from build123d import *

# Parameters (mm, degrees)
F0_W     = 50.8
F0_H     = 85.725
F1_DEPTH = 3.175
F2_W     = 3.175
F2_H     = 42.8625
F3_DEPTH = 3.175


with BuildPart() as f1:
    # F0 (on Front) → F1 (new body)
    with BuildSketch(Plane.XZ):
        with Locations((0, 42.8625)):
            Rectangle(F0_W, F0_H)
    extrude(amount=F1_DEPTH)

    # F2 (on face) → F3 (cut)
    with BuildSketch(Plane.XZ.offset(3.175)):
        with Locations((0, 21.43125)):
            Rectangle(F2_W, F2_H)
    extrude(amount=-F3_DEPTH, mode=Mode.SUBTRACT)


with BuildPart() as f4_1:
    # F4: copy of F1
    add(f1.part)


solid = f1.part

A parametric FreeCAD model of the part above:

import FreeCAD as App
import Part
import Sketcher
from FreeCAD import Vector
Q = App.Units.Quantity


def add_polygon(sketch, points):
    """Adds a closed chain of lines whose ends are joined by coincident constraints."""
    first, n = sketch.GeometryCount, len(points)
    for a, b in zip(points, points[1:] + points[:1]):
        sketch.addGeometry(Part.LineSegment(App.Vector(*a, 0), App.Vector(*b, 0)), False)
    for i in range(n):
        sketch.addConstraint(Sketcher.Constraint("Coincident", first + i, 2, first + (i + 1) % n, 1))

doc = App.newDocument("Part")
body = doc.addObject("PartDesign::Body", "Body")

sketch1 = doc.addObject("Sketcher::SketchObject", "Sketch")
body.addObject(sketch1)
sketch1.AttachmentSupport = (doc.XZ_Plane, [""])
sketch1.MapMode = "FlatFace"
add_polygon(sketch1, [(-25, 86), (-25, 0), (25, 0), (25, 86)])
sketch1.addConstraint([
    Sketcher.Constraint("Vertical", 0),
    Sketcher.Constraint("Horizontal", 1),
    Sketcher.Constraint("Vertical", 2),
    Sketcher.Constraint("Horizontal", 3),
    Sketcher.Constraint("Symmetric", 0, 2, 1, 2, -1, 1),
    Sketcher.Constraint("DistanceX", 1, 1, 1, 2, Q("2 in")),
    Sketcher.Constraint("DistanceY", 0, 2, 0, 1, Q("3.375 in")),
])
pad1 = doc.addObject("PartDesign::Pad", "Pad")
body.addObject(pad1)
pad1.Profile = sketch1
pad1.Length = Q("0.125 in")

sketch2 = doc.addObject("Sketcher::SketchObject", "Sketch001")
body.addObject(sketch2)
sketch2.AttachmentSupport = (doc.XZ_Plane, [""])
sketch2.MapMode = "FlatFace"
sketch2.AttachmentOffset = App.Placement(Vector(0, 0, 0.125 * 25.4), App.Rotation())
add_polygon(sketch2, [(-1.6, 42.9), (-1.6, 0), (1.6, 0), (1.6, 42.9)])
sketch2.addConstraint([
    Sketcher.Constraint("Vertical", 0),
    Sketcher.Constraint("Horizontal", 1),
    Sketcher.Constraint("Vertical", 2),
    Sketcher.Constraint("Horizontal", 3),
    Sketcher.Constraint("Symmetric", 0, 2, 1, 2, -1, 1),
    Sketcher.Constraint("DistanceX", 1, 1, 1, 2, Q("0.125 in")),
    Sketcher.Constraint("DistanceY", 0, 2, 0, 1, Q("1.6875 in")),
])
pocket1 = doc.addObject("PartDesign::Pocket", "Pocket")
body.addObject(pocket1)
pocket1.Profile = sketch2
pocket1.Length = Q("0.125 in")
body2 = doc.addObject("PartDesign::Body", "Body001")
doc.recompute()

body2.BaseFeature = body
doc.recompute()
body.Visibility = False

doc.recompute()
